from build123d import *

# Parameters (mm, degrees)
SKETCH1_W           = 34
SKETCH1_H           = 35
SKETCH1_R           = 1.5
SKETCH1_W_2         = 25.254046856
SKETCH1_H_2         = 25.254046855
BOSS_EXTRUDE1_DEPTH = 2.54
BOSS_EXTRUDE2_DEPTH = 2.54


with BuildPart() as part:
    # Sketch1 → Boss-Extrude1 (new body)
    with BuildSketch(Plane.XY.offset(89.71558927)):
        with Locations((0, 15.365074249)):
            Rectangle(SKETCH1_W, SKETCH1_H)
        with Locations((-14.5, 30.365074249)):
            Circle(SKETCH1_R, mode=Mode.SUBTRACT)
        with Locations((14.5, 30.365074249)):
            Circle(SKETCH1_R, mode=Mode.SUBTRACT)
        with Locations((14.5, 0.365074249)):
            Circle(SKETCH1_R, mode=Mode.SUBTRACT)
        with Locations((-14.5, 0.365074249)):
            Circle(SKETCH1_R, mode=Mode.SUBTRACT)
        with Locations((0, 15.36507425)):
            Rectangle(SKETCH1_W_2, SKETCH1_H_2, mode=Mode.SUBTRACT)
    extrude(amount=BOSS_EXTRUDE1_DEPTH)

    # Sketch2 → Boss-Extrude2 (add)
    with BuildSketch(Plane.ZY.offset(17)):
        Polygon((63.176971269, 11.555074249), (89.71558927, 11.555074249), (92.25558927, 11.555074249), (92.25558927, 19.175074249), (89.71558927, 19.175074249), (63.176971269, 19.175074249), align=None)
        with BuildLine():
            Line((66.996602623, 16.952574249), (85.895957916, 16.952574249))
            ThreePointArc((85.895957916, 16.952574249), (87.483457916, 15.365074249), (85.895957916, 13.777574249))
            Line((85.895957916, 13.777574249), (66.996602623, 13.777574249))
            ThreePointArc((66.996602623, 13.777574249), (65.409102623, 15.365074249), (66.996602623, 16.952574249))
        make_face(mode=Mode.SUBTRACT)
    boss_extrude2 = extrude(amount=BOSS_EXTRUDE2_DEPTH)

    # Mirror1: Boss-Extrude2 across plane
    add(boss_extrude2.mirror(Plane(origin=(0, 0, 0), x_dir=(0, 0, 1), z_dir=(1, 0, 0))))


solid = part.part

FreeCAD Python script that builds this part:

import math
import FreeCAD as App
import Part
import Sketcher
from FreeCAD import Vector
Q = App.Units.Quantity


def add_polygon(sketch, points):
    """Adds a closed chain of lines whose ends are joined by coincident constraints."""
    first, n = sketch.GeometryCount, len(points)
    for a, b in zip(points, points[1:] + points[:1]):
        sketch.addGeometry(Part.LineSegment(App.Vector(*a, 0), App.Vector(*b, 0)), False)
    for i in range(n):
        sketch.addConstraint(Sketcher.Constraint("Coincident", first + i, 2, first + (i + 1) % n, 1))

doc = App.newDocument("Part")
body = doc.addObject("PartDesign::Body", "Body")

sketch1 = body.newObject("Sketcher::SketchObject", "Sketch")
sketch1.AttachmentSupport = (doc.getObject("XY_Plane"), [""])
sketch1.MapMode = "FlatFace"
sketch1.AttachmentOffset = App.Placement(Vector(0, 0, 89.715589), App.Rotation())
add_polygon(sketch1, [(-17, 32.9), (-17, -2.1), (17, -2.1), (17, 32.9)])
sketch1.addGeometry(Part.Circle(Vector(-14.5, 0.4, 0), Vector(0, 0, 1), 1.5), False)
sketch1.addGeometry(Part.Circle(Vector(14.5, 0.4, 0), Vector(0, 0, 1), 1.5), False)
sketch1.addGeometry(Part.Circle(Vector(-14.5, 30.4, 0), Vector(0, 0, 1), 1.5), False)
add_polygon(sketch1, [(12.6, 2.7), (-12.6, 2.7), (-12.6, 28), (12.6, 28)])
sketch1.addGeometry(Part.Circle(Vector(14.5, 30.4, 0), Vector(0, 0, 1), 1.5), False)
sketch1.addConstraint(Sketcher.Constraint("Vertical", 0))
sketch1.addConstraint(Sketcher.Constraint("Horizontal", 1))
sketch1.addConstraint(Sketcher.Constraint("Vertical", 2))
sketch1.addConstraint(Sketcher.Constraint("Horizontal", 3))
sketch1.addConstraint(Sketcher.Constraint("Horizontal", 7))
sketch1.addConstraint(Sketcher.Constraint("Vertical", 8))
sketch1.addConstraint(Sketcher.Constraint("Horizontal", 9))
sketch1.addConstraint(Sketcher.Constraint("Vertical", 10))
sketch1.addConstraint(Sketcher.Constraint("Equal", 4, 5))
sketch1.addConstraint(Sketcher.Constraint("Equal", 5, 6))
sketch1.addConstraint(Sketcher.Constraint("Equal", 6, 11))
sketch1.addConstraint(Sketcher.Constraint("Symmetric", 4, 3, 5, 3, -2))
sketch1.addConstraint(Sketcher.Constraint("Symmetric", 6, 3, 11, 3, -2))
sketch1.addConstraint(Sketcher.Constraint("Vertical", 4, 3, 6, 3))
sketch1.addConstraint(Sketcher.Constraint("Equal", 9, 8))
sketch1.addConstraint(Sketcher.Constraint("Diameter", 4, Q("3 mm")))
sketch1.addConstraint(Sketcher.Constraint("DistanceX", 1, 1, 1, 2, Q("34 mm")))
sketch1.addConstraint(Sketcher.Constraint("DistanceY", 0, 2, 0, 1, Q("35 mm")))
sketch1.addConstraint(Sketcher.Constraint("DistanceX", 0, 2, -1, 1, Q("17 mm")))
sketch1.addConstraint(Sketcher.Constraint("DistanceX", 4, 3, 5, 3, Q("29 mm")))
sketch1.addConstraint(Sketcher.Constraint("DistanceY", 4, 3, 6, 3, Q("30 mm")))
sketch1.addConstraint(Sketcher.Constraint("DistanceY", 0, 2, 4, 3, Q("2.5 mm")))
sketch1.addConstraint(Sketcher.Constraint("DistanceX", 7, 2, 7, 1, Q("25.254047 mm")))
sketch1.addConstraint(Sketcher.Constraint("DistanceY", -1, 1, 7, 2, Q("2.738051 mm")))
sketch1.addConstraint(Sketcher.Constraint("DistanceY", -1, 1, 4, 3, Q("0.365074 mm")))
sketch1.addConstraint(Sketcher.Constraint("DistanceX", 7, 2, -1, 1, Q("12.627023 mm")))
pad1 = body.newObject("PartDesign::Pad", "Pad")
pad1.Profile = sketch1
pad1.Length = 2.54

sketch2 = body.newObject("Sketcher::SketchObject", "Sketch001")
sketch2.AttachmentSupport = (doc.getObject("YZ_Plane"), [""])
sketch2.MapMode = "FlatFace"
sketch2.AttachmentOffset = App.Placement(Vector(0, 0, -17), App.Rotation())
add_polygon(sketch2, [(11.6, 63.2), (11.6, 92.3), (19.2, 92.3), (19.2, 63.2)])
sketch2.addGeometry(Part.ArcOfCircle(Part.Circle(Vector(15.4, 67, 0), Vector(0, 0, 1), 1.6), math.radians(180), math.radians(360)), False)
sketch2.addGeometry(Part.LineSegment(Vector(17, 67, 0), Vector(17, 85.9, 0)), False)
sketch2.addGeometry(Part.ArcOfCircle(Part.Circle(Vector(15.4, 85.9, 0), Vector(0, 0, 1), 1.6), math.radians(0), math.radians(180)), False)
sketch2.addGeometry(Part.LineSegment(Vector(13.8, 85.9, 0), Vector(13.8, 67, 0)), False)
sketch2.addConstraint(Sketcher.Constraint("Tangent", 4, 2, 5, 1))
sketch2.addConstraint(Sketcher.Constraint("Tangent", 5, 2, 6, 1))
sketch2.addConstraint(Sketcher.Constraint("Tangent", 6, 2, 7, 1))
sketch2.addConstraint(Sketcher.Constraint("Tangent", 7, 2, 4, 1))
sketch2.addConstraint(Sketcher.Constraint("Vertical", 0))
sketch2.addConstraint(Sketcher.Constraint("Horizontal", 1))
sketch2.addConstraint(Sketcher.Constraint("Vertical", 2))
sketch2.addConstraint(Sketcher.Constraint("Horizontal", 3))
sketch2.addConstraint(Sketcher.Constraint("Vertical", 5))
sketch2.addConstraint(Sketcher.Constraint("Vertical", 7))
sketch2.addConstraint(Sketcher.Constraint("DistanceX", 1, 1, 1, 2, Q("7.62 mm")))
sketch2.addConstraint(Sketcher.Constraint("Radius", 4, Q("1.5875 mm")))
sketch2.addConstraint(Sketcher.Constraint("DistanceX", 0, 2, 6, 3, Q("3.81 mm")))
sketch2.addConstraint(Sketcher.Constraint("DistanceY", 0, 1, 0, 2, Q("29.078618 mm")))
sketch2.addConstraint(Sketcher.Constraint("DistanceY", 5, 1, 5, 2, Q("18.899355 mm")))
sketch2.addConstraint(Sketcher.Constraint("DistanceY", -1, 1, 0, 2, Q("92.255589 mm")))
sketch2.addConstraint(Sketcher.Constraint("DistanceY", 6, 3, 0, 2, Q("6.359631 mm")))
sketch2.addConstraint(Sketcher.Constraint("DistanceX", -1, 1, 4, 3, Q("15.365074 mm")))
pad2 = body.newObject("PartDesign::Pad", "Pad001")
pad2.Profile = sketch2
pad2.Length = 2.54
pad2.Reversed = True
doc.recompute()

mirrored = body.newObject("PartDesign::Mirrored", "Mirrored")
mirrored.Originals = [pad2]
mirrored.MirrorPlane = (doc.getObject("YZ_Plane"), [""])
body.Tip = mirrored

doc.recompute()
